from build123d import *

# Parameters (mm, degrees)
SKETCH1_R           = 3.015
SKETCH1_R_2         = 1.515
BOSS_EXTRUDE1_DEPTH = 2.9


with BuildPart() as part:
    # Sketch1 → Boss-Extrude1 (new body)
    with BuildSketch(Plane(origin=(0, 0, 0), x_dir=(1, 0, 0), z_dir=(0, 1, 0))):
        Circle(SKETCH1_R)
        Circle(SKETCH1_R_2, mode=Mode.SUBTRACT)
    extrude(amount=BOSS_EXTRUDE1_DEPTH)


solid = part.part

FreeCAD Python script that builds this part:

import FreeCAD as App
import Part
import Sketcher
from FreeCAD import Vector
Q = App.Units.Quantity

doc = App.newDocument("Part")
params = doc.addObject("Spreadsheet::Sheet", "Params")
for row, (alias, value) in enumerate([
    ("sketch1_diameter", "6.03 mm"),
    ("sketch1_diameter2", "3.03 mm"),
    ("pad1_length", "2.9 mm"),
], start=1):
    params.set(f"A{row}", alias)
    params.set(f"B{row}", "=" + value)
    params.setAlias(f"B{row}", alias)

body = doc.addObject("PartDesign::Body", "Body")

# Sketch on XZ plane
sketch1 = body.newObject("Sketcher::SketchObject", "Sketch")
sketch1.AttachmentSupport = (doc.getObject("XZ_Plane"), [""])
sketch1.MapMode = "FlatFace"
sketch1.addGeometry([
    Part.Circle(Vector(0, 0, 0), Vector(0, 0, 1), 3.015),
    Part.Circle(Vector(0, 0, 0), Vector(0, 0, 1), 1.515),
], False)
sketch1.addConstraint([
    Sketcher.Constraint("Coincident", 0, 3, -1, 1),
    Sketcher.Constraint("Coincident", 1, 3, -1, 1),
    Sketcher.Constraint("Diameter", 0, Q("6.03 mm")),
    Sketcher.Constraint("Diameter", 1, Q("3.03 mm")),
])
sketch1.setExpression("Constraints[2]", "Params.sketch1_diameter")
sketch1.setExpression("Constraints[3]", "Params.sketch1_diameter2")
pad1 = body.newObject("PartDesign::Pad", "Pad")
pad1.Profile = sketch1
pad1.setExpression("Length", "Params.pad1_length")
pad1.Reversed = True

doc.recompute()
